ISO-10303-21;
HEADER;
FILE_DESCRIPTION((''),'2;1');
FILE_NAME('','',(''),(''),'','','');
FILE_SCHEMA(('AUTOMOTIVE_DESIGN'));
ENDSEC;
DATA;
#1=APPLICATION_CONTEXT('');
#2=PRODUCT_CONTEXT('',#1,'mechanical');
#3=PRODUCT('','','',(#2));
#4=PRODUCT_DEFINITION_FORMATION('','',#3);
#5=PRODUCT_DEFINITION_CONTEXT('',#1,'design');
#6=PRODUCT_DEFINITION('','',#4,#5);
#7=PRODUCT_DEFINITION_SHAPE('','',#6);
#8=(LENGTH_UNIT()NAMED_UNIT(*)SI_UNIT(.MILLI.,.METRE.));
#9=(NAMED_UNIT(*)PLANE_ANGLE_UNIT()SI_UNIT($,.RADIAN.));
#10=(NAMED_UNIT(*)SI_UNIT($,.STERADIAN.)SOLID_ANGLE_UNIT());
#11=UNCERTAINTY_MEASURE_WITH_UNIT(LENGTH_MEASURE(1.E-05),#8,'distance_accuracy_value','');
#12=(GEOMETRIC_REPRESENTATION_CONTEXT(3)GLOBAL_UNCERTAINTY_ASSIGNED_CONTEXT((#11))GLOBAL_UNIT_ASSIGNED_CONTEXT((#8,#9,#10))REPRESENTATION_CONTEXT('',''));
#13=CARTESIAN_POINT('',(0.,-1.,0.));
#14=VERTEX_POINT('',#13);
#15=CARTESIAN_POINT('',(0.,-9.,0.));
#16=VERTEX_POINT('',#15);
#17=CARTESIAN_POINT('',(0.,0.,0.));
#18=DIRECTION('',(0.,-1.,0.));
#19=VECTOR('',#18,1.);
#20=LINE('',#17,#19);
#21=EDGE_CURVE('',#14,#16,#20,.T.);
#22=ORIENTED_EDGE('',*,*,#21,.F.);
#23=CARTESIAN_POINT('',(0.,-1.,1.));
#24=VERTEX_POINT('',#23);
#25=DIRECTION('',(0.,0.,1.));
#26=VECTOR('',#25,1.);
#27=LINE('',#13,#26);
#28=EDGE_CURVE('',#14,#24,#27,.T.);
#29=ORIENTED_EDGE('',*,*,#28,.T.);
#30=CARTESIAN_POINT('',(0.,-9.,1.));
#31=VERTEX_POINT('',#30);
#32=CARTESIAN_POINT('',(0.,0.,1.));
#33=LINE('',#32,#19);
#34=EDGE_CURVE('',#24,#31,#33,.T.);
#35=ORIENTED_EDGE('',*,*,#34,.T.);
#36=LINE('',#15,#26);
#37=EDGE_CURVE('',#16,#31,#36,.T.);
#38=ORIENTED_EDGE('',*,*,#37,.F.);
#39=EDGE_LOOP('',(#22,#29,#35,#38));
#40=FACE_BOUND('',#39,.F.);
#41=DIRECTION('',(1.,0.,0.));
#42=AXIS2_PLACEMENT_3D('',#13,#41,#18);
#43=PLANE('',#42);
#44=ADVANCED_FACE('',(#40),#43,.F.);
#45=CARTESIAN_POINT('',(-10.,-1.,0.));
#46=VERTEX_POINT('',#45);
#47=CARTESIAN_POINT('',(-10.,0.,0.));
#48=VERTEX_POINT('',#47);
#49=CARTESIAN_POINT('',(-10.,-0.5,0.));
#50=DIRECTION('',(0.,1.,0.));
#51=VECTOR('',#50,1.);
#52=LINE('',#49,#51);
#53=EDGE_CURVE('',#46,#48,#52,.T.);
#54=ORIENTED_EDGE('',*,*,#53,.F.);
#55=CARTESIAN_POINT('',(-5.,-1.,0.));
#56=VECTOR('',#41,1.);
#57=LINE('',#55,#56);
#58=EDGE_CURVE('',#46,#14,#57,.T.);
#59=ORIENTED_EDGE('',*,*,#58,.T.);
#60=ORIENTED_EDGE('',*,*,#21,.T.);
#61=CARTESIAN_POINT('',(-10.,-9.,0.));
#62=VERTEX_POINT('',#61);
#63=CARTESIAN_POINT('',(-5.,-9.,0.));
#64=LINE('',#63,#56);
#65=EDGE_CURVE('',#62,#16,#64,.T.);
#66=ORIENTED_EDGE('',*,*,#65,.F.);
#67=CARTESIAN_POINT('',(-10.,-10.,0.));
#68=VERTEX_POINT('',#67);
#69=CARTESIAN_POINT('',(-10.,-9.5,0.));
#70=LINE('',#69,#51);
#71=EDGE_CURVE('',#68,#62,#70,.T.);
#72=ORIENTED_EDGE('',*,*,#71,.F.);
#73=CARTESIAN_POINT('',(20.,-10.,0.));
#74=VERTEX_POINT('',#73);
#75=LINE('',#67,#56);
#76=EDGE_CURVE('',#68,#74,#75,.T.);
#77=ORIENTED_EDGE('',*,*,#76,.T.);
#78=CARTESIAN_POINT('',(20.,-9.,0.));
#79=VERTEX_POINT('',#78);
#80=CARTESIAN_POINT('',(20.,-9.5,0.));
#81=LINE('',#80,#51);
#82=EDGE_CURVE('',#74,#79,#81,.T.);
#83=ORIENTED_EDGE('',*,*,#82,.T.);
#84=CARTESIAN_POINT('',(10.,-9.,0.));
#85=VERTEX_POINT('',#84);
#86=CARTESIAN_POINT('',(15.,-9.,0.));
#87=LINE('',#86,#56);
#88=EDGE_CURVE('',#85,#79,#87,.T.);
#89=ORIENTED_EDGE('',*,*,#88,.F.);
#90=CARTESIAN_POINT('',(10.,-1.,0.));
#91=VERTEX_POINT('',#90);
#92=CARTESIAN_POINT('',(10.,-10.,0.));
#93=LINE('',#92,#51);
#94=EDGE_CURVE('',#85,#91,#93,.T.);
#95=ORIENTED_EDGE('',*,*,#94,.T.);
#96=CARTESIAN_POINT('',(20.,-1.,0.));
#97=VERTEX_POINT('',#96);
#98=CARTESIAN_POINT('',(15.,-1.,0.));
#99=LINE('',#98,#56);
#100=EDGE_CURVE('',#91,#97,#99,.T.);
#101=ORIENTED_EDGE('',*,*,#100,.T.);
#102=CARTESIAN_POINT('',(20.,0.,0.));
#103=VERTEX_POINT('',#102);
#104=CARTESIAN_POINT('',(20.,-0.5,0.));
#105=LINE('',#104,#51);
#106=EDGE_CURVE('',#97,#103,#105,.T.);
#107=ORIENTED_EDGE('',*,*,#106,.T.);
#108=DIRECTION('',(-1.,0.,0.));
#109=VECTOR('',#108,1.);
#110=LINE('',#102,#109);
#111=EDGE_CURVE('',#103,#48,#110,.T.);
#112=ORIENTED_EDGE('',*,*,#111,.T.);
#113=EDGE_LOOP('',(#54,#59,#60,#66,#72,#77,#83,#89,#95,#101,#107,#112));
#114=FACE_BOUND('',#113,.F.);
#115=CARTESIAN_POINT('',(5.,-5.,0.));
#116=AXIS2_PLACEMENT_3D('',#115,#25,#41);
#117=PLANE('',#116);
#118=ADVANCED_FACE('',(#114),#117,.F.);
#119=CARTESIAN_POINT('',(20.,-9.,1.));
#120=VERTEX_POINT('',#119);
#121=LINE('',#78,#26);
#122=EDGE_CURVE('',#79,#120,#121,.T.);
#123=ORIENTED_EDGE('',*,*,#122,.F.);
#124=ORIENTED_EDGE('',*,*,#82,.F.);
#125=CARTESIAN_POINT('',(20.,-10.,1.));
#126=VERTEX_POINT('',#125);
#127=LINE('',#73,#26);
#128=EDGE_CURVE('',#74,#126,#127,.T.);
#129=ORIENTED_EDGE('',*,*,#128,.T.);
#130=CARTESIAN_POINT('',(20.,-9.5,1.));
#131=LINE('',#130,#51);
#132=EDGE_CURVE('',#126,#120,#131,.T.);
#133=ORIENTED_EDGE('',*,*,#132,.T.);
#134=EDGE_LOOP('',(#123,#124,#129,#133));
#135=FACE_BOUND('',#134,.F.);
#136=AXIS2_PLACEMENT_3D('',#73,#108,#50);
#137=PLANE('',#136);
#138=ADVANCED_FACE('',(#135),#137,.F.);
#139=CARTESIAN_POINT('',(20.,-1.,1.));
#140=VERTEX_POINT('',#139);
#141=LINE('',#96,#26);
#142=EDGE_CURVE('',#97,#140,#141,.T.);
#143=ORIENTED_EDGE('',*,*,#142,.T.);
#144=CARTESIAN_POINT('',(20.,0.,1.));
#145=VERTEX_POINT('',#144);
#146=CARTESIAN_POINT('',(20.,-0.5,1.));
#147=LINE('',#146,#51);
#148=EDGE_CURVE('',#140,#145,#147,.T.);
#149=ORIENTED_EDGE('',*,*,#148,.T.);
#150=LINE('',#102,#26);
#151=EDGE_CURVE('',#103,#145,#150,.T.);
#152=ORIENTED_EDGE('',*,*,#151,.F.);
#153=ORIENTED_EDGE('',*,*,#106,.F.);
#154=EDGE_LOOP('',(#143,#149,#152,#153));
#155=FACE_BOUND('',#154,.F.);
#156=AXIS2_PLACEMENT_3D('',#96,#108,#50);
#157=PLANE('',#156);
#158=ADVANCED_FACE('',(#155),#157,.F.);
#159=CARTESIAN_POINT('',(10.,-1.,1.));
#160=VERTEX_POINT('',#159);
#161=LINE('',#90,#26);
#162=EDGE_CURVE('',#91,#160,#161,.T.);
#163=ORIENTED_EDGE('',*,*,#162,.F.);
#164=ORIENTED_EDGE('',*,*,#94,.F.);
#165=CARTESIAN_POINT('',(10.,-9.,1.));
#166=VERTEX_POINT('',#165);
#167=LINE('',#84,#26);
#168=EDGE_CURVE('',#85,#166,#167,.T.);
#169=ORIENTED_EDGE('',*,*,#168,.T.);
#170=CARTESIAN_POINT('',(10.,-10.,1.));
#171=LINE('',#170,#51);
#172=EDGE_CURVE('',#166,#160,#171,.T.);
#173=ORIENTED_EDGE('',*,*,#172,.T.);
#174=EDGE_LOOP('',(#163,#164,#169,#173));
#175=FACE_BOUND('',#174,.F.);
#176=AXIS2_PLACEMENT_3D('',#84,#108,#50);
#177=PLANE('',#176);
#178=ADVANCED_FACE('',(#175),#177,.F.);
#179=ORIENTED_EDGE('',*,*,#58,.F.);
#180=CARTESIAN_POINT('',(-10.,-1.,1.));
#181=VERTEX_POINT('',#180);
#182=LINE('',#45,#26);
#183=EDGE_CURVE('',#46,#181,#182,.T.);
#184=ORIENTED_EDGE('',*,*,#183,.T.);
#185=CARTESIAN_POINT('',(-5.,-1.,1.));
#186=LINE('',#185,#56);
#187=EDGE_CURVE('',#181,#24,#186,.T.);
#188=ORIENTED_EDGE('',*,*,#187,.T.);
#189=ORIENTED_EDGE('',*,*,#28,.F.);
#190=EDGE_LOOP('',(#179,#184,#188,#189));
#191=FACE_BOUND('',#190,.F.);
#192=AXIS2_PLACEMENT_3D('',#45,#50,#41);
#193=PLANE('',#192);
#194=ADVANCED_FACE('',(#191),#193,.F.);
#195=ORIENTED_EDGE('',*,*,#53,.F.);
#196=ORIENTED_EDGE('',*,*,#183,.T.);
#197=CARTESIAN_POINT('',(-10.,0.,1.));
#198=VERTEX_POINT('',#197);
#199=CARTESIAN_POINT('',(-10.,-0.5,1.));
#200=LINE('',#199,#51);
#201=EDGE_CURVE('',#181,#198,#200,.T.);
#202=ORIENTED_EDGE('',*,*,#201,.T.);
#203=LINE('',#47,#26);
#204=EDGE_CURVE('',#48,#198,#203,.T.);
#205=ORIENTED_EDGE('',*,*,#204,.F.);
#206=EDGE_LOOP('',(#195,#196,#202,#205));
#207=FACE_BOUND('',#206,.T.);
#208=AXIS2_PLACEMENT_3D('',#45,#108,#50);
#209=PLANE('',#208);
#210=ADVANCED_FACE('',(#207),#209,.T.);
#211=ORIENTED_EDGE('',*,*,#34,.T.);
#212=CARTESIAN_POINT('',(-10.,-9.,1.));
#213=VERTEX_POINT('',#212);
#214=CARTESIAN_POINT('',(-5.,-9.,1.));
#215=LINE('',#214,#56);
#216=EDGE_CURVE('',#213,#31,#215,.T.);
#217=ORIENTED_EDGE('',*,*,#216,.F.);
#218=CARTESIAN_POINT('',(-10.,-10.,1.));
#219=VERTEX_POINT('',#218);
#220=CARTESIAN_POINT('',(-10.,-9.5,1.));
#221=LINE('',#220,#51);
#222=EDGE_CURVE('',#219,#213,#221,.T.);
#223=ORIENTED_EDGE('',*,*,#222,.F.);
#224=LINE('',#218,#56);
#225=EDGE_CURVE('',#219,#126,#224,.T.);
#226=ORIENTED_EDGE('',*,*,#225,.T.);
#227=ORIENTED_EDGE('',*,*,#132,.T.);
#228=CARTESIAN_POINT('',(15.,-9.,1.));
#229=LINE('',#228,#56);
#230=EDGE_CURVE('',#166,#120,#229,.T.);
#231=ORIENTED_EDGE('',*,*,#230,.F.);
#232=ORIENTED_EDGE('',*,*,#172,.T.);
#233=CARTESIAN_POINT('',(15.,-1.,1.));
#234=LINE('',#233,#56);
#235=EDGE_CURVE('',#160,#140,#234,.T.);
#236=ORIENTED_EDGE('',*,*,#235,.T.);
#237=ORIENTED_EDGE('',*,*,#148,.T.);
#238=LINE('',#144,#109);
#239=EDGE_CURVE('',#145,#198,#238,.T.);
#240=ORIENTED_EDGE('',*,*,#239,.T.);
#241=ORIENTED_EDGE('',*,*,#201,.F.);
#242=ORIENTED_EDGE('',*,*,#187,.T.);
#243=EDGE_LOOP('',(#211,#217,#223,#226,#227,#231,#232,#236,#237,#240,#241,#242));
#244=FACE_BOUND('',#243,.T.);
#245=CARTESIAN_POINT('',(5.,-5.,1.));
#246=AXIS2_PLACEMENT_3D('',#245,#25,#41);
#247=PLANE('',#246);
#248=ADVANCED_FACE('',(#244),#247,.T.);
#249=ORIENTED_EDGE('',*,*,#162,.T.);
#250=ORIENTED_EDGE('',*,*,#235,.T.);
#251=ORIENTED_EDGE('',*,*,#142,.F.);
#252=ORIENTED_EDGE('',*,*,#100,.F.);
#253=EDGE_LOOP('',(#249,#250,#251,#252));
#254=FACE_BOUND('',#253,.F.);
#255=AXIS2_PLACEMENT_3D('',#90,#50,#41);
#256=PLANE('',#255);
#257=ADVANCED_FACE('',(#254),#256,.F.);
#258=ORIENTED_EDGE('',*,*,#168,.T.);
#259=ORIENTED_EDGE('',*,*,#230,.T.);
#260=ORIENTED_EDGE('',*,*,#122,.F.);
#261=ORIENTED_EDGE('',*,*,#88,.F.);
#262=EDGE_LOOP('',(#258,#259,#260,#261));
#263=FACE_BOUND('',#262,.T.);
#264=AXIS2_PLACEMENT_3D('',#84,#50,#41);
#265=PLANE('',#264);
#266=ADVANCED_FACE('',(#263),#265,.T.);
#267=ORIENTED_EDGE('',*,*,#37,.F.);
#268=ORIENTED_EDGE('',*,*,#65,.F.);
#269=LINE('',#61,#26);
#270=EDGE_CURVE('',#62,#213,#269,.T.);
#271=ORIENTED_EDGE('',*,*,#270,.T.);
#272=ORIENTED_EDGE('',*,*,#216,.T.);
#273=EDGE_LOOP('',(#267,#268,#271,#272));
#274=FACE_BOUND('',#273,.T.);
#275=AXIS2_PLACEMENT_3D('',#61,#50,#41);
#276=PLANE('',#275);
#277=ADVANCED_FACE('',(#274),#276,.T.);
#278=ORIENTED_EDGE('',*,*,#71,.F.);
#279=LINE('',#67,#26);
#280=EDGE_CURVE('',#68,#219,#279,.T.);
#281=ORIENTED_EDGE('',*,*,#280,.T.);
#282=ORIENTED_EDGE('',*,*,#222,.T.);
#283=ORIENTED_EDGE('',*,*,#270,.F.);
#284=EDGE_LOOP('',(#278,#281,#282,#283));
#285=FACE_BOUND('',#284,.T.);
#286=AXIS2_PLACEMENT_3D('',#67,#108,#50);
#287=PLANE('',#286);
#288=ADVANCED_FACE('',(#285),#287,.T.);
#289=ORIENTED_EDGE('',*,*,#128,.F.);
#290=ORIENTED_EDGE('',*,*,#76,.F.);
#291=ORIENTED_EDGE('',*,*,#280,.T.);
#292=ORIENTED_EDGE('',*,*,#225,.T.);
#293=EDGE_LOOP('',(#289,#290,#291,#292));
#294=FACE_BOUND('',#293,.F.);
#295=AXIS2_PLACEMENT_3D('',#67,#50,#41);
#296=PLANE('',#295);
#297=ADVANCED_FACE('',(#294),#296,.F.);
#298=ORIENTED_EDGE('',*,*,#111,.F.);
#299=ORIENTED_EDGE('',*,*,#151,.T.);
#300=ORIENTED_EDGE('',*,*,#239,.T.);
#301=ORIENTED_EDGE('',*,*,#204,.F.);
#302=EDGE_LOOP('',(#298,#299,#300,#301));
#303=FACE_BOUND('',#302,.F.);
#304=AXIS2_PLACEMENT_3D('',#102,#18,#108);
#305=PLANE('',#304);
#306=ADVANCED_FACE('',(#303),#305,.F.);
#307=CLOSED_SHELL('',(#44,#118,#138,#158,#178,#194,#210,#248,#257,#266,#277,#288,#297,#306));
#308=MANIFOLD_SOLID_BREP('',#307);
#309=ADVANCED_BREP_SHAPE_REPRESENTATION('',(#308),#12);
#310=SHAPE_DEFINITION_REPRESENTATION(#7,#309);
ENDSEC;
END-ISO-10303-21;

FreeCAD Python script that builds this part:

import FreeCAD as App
import Part
import Sketcher

doc = App.newDocument("Part")
body = doc.addObject("PartDesign::Body", "Body")

sketch1 = doc.addObject("Sketcher::SketchObject", "Sketch")
body.addObject(sketch1)
sketch1.AttachmentSupport = (doc.XY_Plane, [""])
sketch1.MapMode = "FlatFace"
sketch1.addGeometry([
    Part.LineSegment(App.Vector(-10, 0, 0), App.Vector(-10, -1, 0)),
    Part.LineSegment(App.Vector(-10, -1, 0), App.Vector(0, -1, 0)),
    Part.LineSegment(App.Vector(0, -1, 0), App.Vector(0, -9, 0)),
    Part.LineSegment(App.Vector(0, -9, 0), App.Vector(-10, -9, 0)),
    Part.LineSegment(App.Vector(-10, -9, 0), App.Vector(-10, -10, 0)),
    Part.LineSegment(App.Vector(-10, -10, 0), App.Vector(20, -10, 0)),
    Part.LineSegment(App.Vector(20, -10, 0), App.Vector(20, -9, 0)),
    Part.LineSegment(App.Vector(20, -9, 0), App.Vector(10, -9, 0)),
    Part.LineSegment(App.Vector(10, -9, 0), App.Vector(10, -1, 0)),
    Part.LineSegment(App.Vector(10, -1, 0), App.Vector(20, -1, 0)),
    Part.LineSegment(App.Vector(20, -1, 0), App.Vector(20, 0, 0)),
    Part.LineSegment(App.Vector(20, 0, 0), App.Vector(-10, 0, 0)),
], False)
sketch1.addConstraint([
    Sketcher.Constraint("Coincident", 0, 2, 1, 1),
    Sketcher.Constraint("Coincident", 1, 2, 2, 1),
    Sketcher.Constraint("Coincident", 2, 2, 3, 1),
    Sketcher.Constraint("Coincident", 3, 2, 4, 1),
    Sketcher.Constraint("Coincident", 4, 2, 5, 1),
    Sketcher.Constraint("Coincident", 5, 2, 6, 1),
    Sketcher.Constraint("Coincident", 6, 2, 7, 1),
    Sketcher.Constraint("Coincident", 7, 2, 8, 1),
    Sketcher.Constraint("Coincident", 8, 2, 9, 1),
    Sketcher.Constraint("Coincident", 9, 2, 10, 1),
    Sketcher.Constraint("Coincident", 10, 2, 11, 1),
    Sketcher.Constraint("Coincident", 11, 2, 0, 1),
    Sketcher.Constraint("Vertical", 0),
    Sketcher.Constraint("Horizontal", 1),
    Sketcher.Constraint("Vertical", 2),
    Sketcher.Constraint("Horizontal", 3),
    Sketcher.Constraint("Vertical", 4),
    Sketcher.Constraint("Horizontal", 5),
    Sketcher.Constraint("Vertical", 6),
    Sketcher.Constraint("Horizontal", 7),
    Sketcher.Constraint("Vertical", 8),
    Sketcher.Constraint("Horizontal", 9),
    Sketcher.Constraint("Vertical", 10),
    Sketcher.Constraint("Horizontal", 11),
    Sketcher.Constraint("Symmetric", 3, 2, 7, 2, -2),
    Sketcher.Constraint("Symmetric", 0, 2, 8, 2, -2),
    Sketcher.Constraint("PointOnObject", 1, 2, -2),
    Sketcher.Constraint("PointOnObject", 10, 2, -1),
    Sketcher.Constraint("Vertical", 6, 2, 9, 2),
    Sketcher.Constraint("Equal", 3, 7),
    Sketcher.Constraint("Equal", 0, 4),
    Sketcher.Constraint("DistanceX", 1, 1, 1, 2, 10.0),
    Sketcher.Constraint("DistanceY", 0, 2, 0, 1, 1.0),
    Sketcher.Constraint("DistanceY", 2, 2, 2, 1, 8.0),
])
pad1 = doc.addObject("PartDesign::Pad", "Pad")
body.addObject(pad1)
pad1.Profile = sketch1
pad1.Length = 1

doc.recompute()
